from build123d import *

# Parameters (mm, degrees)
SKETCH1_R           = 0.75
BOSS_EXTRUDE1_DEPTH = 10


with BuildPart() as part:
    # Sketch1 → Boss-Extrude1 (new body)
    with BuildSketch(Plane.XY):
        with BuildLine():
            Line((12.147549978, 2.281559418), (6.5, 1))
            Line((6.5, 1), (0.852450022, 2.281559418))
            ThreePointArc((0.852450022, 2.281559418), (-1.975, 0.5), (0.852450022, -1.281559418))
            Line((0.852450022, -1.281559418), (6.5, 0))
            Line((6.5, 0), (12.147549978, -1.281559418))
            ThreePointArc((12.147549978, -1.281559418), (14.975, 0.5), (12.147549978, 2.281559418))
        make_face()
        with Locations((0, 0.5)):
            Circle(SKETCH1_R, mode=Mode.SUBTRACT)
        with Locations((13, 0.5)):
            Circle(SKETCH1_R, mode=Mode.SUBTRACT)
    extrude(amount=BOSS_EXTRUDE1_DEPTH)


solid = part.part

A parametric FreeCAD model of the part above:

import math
import FreeCAD as App
import Part
import Sketcher

doc = App.newDocument("Part")
body = doc.addObject("PartDesign::Body", "Body")

sketch1 = body.newObject("Sketcher::SketchObject", "Sketch")
sketch1.AttachmentSupport = (doc.getObject("XY_Plane"), [""])
sketch1.MapMode = "FlatFace"
sketch1.addGeometry([
    Part.LineSegment(App.Vector(12.1, 2.3, 0), App.Vector(6.5, 1, 0)),
    Part.LineSegment(App.Vector(6.5, 1, 0), App.Vector(0.9, 2.3, 0)),
    Part.ArcOfCircle(Part.Circle(App.Vector(0, 0.5, 0), App.Vector(0, 0, 1), 2), math.radians(64), math.radians(296)),
    Part.LineSegment(App.Vector(0.9, -1.3, 0), App.Vector(6.5, 0, 0)),
    Part.LineSegment(App.Vector(6.5, 0, 0), App.Vector(12.1, -1.3, 0)),
    Part.ArcOfCircle(Part.Circle(App.Vector(13, 0.5, 0), App.Vector(0, 0, 1), 2), math.radians(-116), math.radians(116)),
    Part.Circle(App.Vector(0, 0.5, 0), App.Vector(0, 0, 1), 0.8),
    Part.Circle(App.Vector(13, 0.5, 0), App.Vector(0, 0, 1), 0.8),
], False)
sketch1.addConstraint([
    Sketcher.Constraint("Coincident", 0, 2, 1, 1),
    Sketcher.Constraint("Coincident", 1, 2, 2, 1),
    Sketcher.Constraint("Coincident", 2, 2, 3, 1),
    Sketcher.Constraint("Coincident", 3, 2, 4, 1),
    Sketcher.Constraint("Coincident", 4, 2, 5, 1),
    Sketcher.Constraint("Coincident", 5, 2, 0, 1),
    Sketcher.Constraint("Coincident", 6, 3, 2, 3),
    Sketcher.Constraint("Coincident", 7, 3, 5, 3),
    Sketcher.Constraint("Equal", 2, 5),
    Sketcher.Constraint("Equal", 6, 7),
    Sketcher.Constraint("PointOnObject", 2, 3, -2),
    Sketcher.Constraint("PointOnObject", 3, 2, -1),
    Sketcher.Constraint("Parallel", 0, 3),
    Sketcher.Constraint("Parallel", 1, 4),
    Sketcher.Constraint("Horizontal", 2, 3, 5, 3),
    Sketcher.Constraint("Horizontal", 2, 2, 4, 2),
    Sketcher.Constraint("Horizontal", 1, 2, 5, 2),
    Sketcher.Constraint("Vertical", 1, 2, 2, 2),
    Sketcher.Constraint("Vertical", 0, 2, 3, 2),
    Sketcher.Constraint("Diameter", 6, 1.5),
    Sketcher.Constraint("DistanceX", -1, 1, 5, 3, 13.0),
    Sketcher.Constraint("DistanceY", -1, 1, 0, 2, 1.0),
    Sketcher.Constraint("Radius", 2, 1.975),
    Sketcher.Constraint("DistanceX", 2, 2, 4, 2, 11.2951),
])
pad1 = body.newObject("PartDesign::Pad", "Pad")
pad1.Profile = sketch1
pad1.Length = 10

doc.recompute()
